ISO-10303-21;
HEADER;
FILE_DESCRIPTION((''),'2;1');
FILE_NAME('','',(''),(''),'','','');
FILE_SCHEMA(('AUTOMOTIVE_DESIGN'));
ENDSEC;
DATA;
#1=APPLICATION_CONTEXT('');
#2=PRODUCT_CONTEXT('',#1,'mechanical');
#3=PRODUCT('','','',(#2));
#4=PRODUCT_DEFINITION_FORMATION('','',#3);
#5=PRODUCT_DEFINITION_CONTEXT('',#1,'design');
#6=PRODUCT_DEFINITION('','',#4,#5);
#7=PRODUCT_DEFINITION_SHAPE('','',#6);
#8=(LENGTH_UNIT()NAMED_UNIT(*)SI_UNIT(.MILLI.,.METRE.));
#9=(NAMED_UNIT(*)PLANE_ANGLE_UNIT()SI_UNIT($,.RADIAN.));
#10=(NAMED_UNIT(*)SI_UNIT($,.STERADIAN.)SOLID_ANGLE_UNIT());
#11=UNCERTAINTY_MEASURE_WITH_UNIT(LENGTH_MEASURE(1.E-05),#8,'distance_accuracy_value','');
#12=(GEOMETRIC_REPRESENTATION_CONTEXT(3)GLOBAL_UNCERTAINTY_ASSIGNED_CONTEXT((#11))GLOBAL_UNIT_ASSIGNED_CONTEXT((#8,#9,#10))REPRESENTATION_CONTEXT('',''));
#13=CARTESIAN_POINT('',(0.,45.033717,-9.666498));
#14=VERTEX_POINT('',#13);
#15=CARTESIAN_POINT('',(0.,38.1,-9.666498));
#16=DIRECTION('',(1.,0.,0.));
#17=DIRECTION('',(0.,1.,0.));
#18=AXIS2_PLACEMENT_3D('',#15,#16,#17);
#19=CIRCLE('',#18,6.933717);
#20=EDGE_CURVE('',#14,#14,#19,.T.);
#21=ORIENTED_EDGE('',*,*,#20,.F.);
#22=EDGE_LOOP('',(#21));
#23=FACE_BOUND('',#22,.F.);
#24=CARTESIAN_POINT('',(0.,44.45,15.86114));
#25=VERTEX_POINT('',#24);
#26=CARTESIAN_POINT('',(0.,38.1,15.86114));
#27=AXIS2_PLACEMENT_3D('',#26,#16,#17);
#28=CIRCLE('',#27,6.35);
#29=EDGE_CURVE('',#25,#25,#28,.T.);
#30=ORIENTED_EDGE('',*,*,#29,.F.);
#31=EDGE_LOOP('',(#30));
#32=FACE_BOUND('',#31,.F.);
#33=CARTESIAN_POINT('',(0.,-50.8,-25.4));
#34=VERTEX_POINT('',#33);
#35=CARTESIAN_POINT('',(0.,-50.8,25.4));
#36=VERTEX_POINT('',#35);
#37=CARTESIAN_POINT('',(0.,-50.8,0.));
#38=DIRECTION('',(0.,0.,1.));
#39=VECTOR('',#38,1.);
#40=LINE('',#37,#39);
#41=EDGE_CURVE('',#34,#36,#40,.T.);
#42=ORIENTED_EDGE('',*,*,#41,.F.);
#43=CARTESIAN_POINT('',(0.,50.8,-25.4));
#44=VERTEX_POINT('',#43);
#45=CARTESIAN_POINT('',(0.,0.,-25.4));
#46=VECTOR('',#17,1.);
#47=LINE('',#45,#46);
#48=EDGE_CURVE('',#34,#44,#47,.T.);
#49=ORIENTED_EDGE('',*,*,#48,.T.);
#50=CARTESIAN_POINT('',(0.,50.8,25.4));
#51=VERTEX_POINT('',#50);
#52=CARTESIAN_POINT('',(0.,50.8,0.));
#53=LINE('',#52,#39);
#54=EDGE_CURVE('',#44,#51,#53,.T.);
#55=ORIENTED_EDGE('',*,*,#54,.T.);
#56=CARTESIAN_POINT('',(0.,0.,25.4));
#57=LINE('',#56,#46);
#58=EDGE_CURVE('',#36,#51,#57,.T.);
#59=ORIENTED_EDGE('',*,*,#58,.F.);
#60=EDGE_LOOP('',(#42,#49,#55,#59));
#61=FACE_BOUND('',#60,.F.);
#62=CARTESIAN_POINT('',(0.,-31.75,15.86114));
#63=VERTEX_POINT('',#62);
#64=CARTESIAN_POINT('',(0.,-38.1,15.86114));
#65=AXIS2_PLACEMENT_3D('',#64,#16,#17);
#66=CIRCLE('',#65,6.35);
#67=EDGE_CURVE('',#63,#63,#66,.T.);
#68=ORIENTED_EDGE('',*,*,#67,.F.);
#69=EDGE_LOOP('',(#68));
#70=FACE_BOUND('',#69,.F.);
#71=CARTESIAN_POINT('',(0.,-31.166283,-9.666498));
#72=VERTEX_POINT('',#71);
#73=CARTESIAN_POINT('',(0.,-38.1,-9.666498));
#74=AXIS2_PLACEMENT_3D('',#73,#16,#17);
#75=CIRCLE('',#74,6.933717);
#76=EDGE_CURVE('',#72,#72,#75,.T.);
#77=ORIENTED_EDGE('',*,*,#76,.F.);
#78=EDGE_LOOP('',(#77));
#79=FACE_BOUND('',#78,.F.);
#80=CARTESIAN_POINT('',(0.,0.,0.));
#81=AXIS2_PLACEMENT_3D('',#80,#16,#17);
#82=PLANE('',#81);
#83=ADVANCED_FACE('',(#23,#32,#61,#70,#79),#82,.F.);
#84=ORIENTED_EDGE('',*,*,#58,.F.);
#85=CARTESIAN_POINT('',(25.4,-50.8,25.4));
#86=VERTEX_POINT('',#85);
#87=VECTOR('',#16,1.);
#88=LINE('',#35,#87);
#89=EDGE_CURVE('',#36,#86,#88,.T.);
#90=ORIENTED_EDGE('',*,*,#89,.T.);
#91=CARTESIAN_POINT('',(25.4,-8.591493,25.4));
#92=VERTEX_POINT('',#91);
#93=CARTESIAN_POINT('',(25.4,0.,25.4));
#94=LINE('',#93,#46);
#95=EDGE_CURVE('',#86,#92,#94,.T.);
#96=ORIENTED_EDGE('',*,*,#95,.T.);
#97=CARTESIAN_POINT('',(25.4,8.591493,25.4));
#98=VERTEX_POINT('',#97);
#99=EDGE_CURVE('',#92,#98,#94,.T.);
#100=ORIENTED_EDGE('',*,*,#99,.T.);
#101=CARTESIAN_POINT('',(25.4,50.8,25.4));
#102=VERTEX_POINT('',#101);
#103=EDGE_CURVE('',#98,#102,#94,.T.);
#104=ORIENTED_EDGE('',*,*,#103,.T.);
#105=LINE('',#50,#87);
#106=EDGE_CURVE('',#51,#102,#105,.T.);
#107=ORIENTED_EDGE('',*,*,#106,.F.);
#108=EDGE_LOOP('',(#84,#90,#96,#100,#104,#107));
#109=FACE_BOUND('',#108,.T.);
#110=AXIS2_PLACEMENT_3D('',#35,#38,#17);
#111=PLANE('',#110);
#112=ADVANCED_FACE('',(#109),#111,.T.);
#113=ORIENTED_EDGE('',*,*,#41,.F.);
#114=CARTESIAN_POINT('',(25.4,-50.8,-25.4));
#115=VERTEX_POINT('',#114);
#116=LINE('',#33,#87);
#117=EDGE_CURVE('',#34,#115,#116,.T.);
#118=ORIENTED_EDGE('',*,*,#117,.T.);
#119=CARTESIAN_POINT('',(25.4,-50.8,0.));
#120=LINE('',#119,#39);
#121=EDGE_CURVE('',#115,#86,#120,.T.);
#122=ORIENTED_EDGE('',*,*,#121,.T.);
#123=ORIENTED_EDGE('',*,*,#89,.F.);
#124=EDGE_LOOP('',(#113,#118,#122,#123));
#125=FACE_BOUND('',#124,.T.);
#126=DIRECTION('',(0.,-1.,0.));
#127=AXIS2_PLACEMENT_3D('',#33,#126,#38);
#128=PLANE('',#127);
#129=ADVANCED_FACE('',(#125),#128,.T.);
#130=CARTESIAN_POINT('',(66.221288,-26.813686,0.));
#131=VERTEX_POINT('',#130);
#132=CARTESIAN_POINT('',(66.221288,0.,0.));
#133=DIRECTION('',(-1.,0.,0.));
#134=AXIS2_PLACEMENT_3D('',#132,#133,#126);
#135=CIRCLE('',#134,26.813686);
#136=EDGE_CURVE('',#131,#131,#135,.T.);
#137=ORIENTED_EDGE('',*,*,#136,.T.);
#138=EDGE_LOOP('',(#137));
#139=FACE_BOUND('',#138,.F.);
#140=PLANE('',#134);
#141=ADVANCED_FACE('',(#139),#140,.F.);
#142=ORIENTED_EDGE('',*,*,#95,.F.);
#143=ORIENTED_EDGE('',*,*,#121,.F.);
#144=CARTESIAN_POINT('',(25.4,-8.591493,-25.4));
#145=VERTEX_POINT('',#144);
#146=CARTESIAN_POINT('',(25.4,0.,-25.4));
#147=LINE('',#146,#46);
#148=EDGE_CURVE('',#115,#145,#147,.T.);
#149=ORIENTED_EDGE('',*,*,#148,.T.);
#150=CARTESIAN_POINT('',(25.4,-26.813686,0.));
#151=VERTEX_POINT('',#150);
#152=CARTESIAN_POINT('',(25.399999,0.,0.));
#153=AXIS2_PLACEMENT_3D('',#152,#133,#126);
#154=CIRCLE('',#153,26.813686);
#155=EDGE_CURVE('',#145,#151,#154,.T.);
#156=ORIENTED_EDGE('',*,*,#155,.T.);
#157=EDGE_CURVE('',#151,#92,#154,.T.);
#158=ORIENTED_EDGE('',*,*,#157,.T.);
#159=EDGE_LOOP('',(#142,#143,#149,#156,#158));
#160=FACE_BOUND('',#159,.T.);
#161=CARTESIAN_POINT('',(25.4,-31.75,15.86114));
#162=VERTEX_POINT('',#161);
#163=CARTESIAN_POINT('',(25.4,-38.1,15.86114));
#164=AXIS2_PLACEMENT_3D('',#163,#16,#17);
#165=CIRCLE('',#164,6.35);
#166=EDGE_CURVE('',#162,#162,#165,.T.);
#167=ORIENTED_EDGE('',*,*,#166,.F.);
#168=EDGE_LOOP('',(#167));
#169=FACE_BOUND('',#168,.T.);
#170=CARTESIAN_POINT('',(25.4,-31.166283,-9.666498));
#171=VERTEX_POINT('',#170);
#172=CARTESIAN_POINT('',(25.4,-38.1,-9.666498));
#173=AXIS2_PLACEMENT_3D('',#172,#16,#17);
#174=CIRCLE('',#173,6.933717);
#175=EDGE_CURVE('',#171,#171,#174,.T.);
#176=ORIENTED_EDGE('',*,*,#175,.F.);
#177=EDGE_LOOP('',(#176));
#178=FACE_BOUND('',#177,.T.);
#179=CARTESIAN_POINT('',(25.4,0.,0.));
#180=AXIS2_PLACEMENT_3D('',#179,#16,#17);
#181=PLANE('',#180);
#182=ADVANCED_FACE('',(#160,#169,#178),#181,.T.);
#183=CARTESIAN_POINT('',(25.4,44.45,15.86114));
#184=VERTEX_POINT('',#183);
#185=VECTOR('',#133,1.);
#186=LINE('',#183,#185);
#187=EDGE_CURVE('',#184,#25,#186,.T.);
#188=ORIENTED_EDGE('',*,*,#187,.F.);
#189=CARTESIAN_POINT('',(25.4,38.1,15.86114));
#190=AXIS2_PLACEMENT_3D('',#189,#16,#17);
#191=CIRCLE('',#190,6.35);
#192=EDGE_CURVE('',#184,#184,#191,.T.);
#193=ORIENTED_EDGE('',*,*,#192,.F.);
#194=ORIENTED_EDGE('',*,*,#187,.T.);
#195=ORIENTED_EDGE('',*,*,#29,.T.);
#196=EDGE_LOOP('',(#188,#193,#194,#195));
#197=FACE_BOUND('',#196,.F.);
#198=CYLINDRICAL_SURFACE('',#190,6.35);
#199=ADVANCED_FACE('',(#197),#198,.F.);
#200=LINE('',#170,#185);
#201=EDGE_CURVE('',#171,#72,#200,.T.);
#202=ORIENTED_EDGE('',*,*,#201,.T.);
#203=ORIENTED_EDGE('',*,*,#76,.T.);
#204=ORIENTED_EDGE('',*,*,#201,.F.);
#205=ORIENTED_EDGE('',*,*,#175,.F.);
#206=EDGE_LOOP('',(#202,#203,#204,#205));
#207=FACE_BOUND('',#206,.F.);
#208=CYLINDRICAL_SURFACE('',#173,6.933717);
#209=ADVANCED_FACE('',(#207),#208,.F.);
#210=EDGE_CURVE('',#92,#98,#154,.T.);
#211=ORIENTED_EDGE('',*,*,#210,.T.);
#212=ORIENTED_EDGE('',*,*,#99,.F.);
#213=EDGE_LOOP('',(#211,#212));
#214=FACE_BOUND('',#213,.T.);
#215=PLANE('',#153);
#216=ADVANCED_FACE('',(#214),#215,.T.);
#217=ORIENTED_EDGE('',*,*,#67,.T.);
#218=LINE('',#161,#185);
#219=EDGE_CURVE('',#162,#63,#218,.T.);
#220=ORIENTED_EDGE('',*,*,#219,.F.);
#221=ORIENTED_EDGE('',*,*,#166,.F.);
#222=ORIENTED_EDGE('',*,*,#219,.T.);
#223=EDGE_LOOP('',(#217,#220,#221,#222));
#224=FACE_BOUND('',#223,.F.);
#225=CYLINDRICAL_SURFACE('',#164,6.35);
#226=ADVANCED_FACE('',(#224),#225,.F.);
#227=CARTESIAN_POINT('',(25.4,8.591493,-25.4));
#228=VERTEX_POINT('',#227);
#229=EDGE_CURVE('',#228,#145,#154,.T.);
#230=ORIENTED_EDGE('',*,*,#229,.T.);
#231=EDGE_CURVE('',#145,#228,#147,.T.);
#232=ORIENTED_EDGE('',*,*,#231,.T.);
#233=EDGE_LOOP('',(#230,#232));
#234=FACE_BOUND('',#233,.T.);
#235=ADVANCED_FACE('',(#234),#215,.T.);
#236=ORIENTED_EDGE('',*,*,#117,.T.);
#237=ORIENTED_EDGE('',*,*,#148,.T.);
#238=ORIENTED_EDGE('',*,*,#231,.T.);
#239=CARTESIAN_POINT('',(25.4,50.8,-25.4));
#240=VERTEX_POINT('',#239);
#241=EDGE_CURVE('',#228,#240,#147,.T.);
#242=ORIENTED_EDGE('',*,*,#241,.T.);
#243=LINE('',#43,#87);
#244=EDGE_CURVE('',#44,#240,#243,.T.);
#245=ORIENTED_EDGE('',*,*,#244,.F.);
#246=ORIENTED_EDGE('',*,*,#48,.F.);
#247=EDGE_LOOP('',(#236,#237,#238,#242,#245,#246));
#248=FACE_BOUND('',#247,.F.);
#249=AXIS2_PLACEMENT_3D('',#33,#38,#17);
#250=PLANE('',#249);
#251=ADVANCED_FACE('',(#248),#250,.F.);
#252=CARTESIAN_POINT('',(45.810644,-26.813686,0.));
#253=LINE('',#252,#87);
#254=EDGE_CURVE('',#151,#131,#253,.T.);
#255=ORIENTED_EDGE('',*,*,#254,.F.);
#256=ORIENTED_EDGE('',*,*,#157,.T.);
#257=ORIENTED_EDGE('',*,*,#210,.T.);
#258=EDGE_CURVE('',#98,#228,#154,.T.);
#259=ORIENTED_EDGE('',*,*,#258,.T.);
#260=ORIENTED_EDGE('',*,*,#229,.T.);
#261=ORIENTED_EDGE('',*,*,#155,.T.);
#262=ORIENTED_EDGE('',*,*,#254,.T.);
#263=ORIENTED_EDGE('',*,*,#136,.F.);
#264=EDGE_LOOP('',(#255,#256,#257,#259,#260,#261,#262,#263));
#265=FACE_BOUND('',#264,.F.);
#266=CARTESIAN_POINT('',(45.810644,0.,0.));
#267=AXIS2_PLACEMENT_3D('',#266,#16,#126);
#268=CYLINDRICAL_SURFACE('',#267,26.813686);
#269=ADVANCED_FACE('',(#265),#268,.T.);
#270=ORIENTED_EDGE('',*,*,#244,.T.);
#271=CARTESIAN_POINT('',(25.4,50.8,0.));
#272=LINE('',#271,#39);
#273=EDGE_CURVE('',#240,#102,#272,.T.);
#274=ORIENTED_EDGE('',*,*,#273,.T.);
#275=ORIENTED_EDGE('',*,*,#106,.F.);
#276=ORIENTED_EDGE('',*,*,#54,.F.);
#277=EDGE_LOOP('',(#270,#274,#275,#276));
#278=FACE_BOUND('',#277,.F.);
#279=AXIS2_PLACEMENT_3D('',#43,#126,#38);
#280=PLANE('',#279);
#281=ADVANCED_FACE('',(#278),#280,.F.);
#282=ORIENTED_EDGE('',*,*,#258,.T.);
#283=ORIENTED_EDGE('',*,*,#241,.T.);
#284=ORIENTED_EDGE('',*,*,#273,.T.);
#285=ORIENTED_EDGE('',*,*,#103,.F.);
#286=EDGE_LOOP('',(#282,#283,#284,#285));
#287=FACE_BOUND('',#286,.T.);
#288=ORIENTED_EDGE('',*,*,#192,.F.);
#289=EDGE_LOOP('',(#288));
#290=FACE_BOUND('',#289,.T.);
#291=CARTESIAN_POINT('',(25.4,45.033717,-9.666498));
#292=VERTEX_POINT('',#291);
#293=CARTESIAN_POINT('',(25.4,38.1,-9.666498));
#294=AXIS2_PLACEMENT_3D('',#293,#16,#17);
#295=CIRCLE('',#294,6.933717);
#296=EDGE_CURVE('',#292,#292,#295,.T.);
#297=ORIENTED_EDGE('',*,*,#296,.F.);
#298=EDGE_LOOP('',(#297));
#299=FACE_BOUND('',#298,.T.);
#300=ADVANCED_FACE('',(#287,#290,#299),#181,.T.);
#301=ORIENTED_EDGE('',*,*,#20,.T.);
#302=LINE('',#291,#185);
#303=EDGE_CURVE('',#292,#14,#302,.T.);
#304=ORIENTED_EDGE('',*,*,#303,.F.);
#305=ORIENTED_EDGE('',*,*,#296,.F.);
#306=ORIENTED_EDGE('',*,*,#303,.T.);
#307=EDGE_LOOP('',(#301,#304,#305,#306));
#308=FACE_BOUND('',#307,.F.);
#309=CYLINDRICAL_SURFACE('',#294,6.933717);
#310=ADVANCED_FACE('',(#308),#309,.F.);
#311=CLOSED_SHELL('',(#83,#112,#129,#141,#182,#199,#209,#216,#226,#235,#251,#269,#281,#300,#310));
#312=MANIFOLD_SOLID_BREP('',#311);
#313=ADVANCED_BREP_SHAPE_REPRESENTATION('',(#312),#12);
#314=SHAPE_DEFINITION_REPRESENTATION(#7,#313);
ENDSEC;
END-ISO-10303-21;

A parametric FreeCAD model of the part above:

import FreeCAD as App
import Part
import Sketcher

V = App.Vector
Q = App.Units.Quantity


def add_polygon(sketch, points):
    """Adds a closed chain of lines whose ends are joined by coincident constraints."""
    first, n = sketch.GeometryCount, len(points)
    for a, b in zip(points, points[1:] + points[:1]):
        sketch.addGeometry(Part.LineSegment(App.Vector(*a, 0), App.Vector(*b, 0)), False)
    for i in range(n):
        sketch.addConstraint(Sketcher.Constraint("Coincident", first + i, 2, first + (i + 1) % n, 1))

doc = App.newDocument("Part")
params = doc.addObject("Spreadsheet::Sheet", "Params")
for row, (alias, value) in enumerate([
    ("sketch1_width", "4 in"),
    ("sketch1_height", "2 in"),
    ("pad1_length", "1 in"),
    ("sketch2_diameter", "0.5 in"),
    ("revolution_angle", "360 deg"),
], start=1):
    params.set(f"A{row}", alias)
    params.set(f"B{row}", "=" + value)
    params.setAlias(f"B{row}", alias)

body = doc.addObject("PartDesign::Body", "Body")

sketch1 = body.newObject("Sketcher::SketchObject", "Sketch")
sketch1.AttachmentSupport = (doc.getObject("YZ_Plane"), [""])
sketch1.MapMode = "FlatFace"
add_polygon(sketch1, [(-51, 25), (-51, -25), (51, -25), (51, 25)])
sketch1.addConstraint([
    Sketcher.Constraint("Vertical", 0),
    Sketcher.Constraint("Horizontal", 1),
    Sketcher.Constraint("Vertical", 2),
    Sketcher.Constraint("Horizontal", 3),
    Sketcher.Constraint("Symmetric", 0, 2, 2, 2, -1, 1),
    Sketcher.Constraint("DistanceX", 1, 1, 1, 2, Q("4 in")),
    Sketcher.Constraint("DistanceY", 0, 2, 0, 1, Q("2 in")),
])
sketch1.setExpression("Constraints[9]", "Params.sketch1_width")
sketch1.setExpression("Constraints[10]", "Params.sketch1_height")
pad1 = body.newObject("PartDesign::Pad", "Pad")
pad1.Profile = sketch1
pad1.setExpression("Length", "Params.pad1_length")

sketch2 = body.newObject("Sketcher::SketchObject", "Sketch001")
sketch2.AttachmentSupport = (doc.getObject("YZ_Plane"), [""])
sketch2.MapMode = "FlatFace"
sketch2.AttachmentOffset = App.Placement(V(0, 0, 1 * 25.4), App.Rotation())
sketch2.addGeometry([
    Part.Circle(V(-38, 16, 0), V(0, 0, 1), 6),
    Part.Circle(V(38, 16, 0), V(0, 0, 1), 6),
    Part.Circle(V(38, -10, 0), V(0, 0, 1), 7),
    Part.Circle(V(-38, -10, 0), V(0, 0, 1), 7),
], False)
sketch2.addConstraint([
    Sketcher.Constraint("Equal", 0, 1),
    Sketcher.Constraint("Equal", 2, 3),
    Sketcher.Constraint("Symmetric", 0, 3, 1, 3, -2),
    Sketcher.Constraint("Symmetric", 2, 3, 3, 3, -2),
    Sketcher.Constraint("Vertical", 1, 3, 2, 3),
    Sketcher.Constraint("Diameter", 0, Q("0.5 in")),
    Sketcher.Constraint("DistanceX", 0, 3, 1, 3, Q("3 in")),
    Sketcher.Constraint("Diameter", 2, 13.867434),
    Sketcher.Constraint("DistanceY", 2, 3, -1, 1, 9.666498),
    Sketcher.Constraint("DistanceY", -1, 1, 0, 3, 15.86114),
])
sketch2.setExpression("Constraints[5]", "Params.sketch2_diameter")
pocket1 = body.newObject("PartDesign::Pocket", "Pocket")
pocket1.Profile = sketch2
pocket1.Type = "ThroughAll"

sketch3 = body.newObject("Sketcher::SketchObject", "Sketch002")
sketch3.AttachmentSupport = (doc.getObject("XY_Plane"), [""])
sketch3.MapMode = "FlatFace"
add_polygon(sketch3, [(25, 0), (25, -27), (66, -27), (66, 0)])
sketch3.addConstraint([
    Sketcher.Constraint("Vertical", 0),
    Sketcher.Constraint("Horizontal", 1),
    Sketcher.Constraint("Vertical", 2),
    Sketcher.Constraint("Horizontal", 3),
    Sketcher.Constraint("PointOnObject", 2, 2, -1),
    Sketcher.Constraint("DistanceX", -1, 1, 0, 2, Q("1 in")),
    Sketcher.Constraint("DistanceX", 1, 1, 1, 2, 40.821289),
    Sketcher.Constraint("DistanceY", 0, 2, 0, 1, 26.813686),
])
revolution = body.newObject("PartDesign::Revolution", "Revolution")
revolution.Profile = sketch3
revolution.ReferenceAxis = (sketch3, ["H_Axis"])
revolution.setExpression("Angle", "Params.revolution_angle")

doc.recompute()
